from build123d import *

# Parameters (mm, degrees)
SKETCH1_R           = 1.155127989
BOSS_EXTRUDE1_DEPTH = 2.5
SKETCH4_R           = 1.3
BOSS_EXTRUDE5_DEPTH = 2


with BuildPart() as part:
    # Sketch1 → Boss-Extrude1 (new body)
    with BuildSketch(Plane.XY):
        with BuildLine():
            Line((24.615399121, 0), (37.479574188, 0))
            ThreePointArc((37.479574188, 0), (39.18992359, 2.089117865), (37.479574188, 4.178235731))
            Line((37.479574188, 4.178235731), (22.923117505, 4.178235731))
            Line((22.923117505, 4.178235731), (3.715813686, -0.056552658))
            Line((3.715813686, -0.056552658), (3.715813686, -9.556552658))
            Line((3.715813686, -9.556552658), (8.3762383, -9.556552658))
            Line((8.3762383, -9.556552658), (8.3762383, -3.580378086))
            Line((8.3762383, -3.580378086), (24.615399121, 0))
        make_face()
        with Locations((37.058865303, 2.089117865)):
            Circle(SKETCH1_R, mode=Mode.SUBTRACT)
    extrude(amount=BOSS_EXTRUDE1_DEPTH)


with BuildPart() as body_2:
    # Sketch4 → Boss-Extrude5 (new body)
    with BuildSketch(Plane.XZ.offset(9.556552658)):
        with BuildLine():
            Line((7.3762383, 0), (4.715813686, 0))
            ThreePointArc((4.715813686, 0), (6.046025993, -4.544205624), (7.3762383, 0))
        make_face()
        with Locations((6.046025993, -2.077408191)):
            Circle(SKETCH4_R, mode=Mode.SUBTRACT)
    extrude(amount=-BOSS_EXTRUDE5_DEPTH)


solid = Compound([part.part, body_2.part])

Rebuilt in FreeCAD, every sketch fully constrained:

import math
import FreeCAD as App
import Part
import Sketcher

V = App.Vector
Q = App.Units.Quantity

doc = App.newDocument("Part")
params = doc.addObject("Spreadsheet::Sheet", "Params")
for row, (alias, value) in enumerate([
    ("sketch1_height", "9.5 mm"),
    ("pad1_length", "2.5 mm"),
    ("sketch2_diameter", "2.6 mm"),
    ("pad2_length", "2 mm"),
], start=1):
    params.set(f"A{row}", alias)
    params.set(f"B{row}", "=" + value)
    params.setAlias(f"B{row}", alias)

body = doc.addObject("PartDesign::Body", "Body")

# Sketch on XY plane
sketch1 = body.newObject("Sketcher::SketchObject", "Sketch")
sketch1.AttachmentSupport = (doc.getObject("XY_Plane"), [""])
sketch1.MapMode = "FlatFace"
sketch1.addGeometry(Part.LineSegment(V(24.6, 0, 0), V(37.5, 0, 0)), False)
sketch1.addGeometry(Part.ArcOfCircle(Part.Circle(V(37.1, 2.1, 0), V(0, 0, 1), 2.1), math.radians(-79), math.radians(79)), False)
sketch1.addGeometry(Part.LineSegment(V(37.5, 4.2, 0), V(22.9, 4.2, 0)), False)
sketch1.addGeometry(Part.LineSegment(V(22.9, 4.2, 0), V(3.7, -0.1, 0)), False)
sketch1.addGeometry(Part.LineSegment(V(3.7, -0.1, 0), V(3.7, -9.6, 0)), False)
sketch1.addGeometry(Part.LineSegment(V(3.7, -9.6, 0), V(8.4, -9.6, 0)), False)
sketch1.addGeometry(Part.LineSegment(V(8.4, -9.6, 0), V(8.4, -3.6, 0)), False)
sketch1.addGeometry(Part.LineSegment(V(8.4, -3.6, 0), V(24.6, 0, 0)), False)
sketch1.addGeometry(Part.Circle(V(37.1, 2.1, 0), V(0, 0, 1), 1.2), False)
sketch1.addConstraint(Sketcher.Constraint("Coincident", 0, 2, 1, 1))
sketch1.addConstraint(Sketcher.Constraint("Coincident", 1, 2, 2, 1))
sketch1.addConstraint(Sketcher.Constraint("Coincident", 2, 2, 3, 1))
sketch1.addConstraint(Sketcher.Constraint("Coincident", 3, 2, 4, 1))
sketch1.addConstraint(Sketcher.Constraint("Coincident", 4, 2, 5, 1))
sketch1.addConstraint(Sketcher.Constraint("Coincident", 5, 2, 6, 1))
sketch1.addConstraint(Sketcher.Constraint("Coincident", 6, 2, 7, 1))
sketch1.addConstraint(Sketcher.Constraint("Coincident", 7, 2, 0, 1))
sketch1.addConstraint(Sketcher.Constraint("Horizontal", 0))
sketch1.addConstraint(Sketcher.Constraint("Horizontal", 2))
sketch1.addConstraint(Sketcher.Constraint("Vertical", 4))
sketch1.addConstraint(Sketcher.Constraint("Horizontal", 5))
sketch1.addConstraint(Sketcher.Constraint("Vertical", 6))
sketch1.addConstraint(Sketcher.Constraint("Coincident", 8, 3, 1, 3))
sketch1.addConstraint(Sketcher.Constraint("PointOnObject", 0, 2, -1))
sketch1.addConstraint(Sketcher.Constraint("Parallel", 3, 7))
sketch1.addConstraint(Sketcher.Constraint("Vertical", 0, 2, 1, 2))
sketch1.addConstraint(Sketcher.Constraint("DistanceY", 4, 2, 4, 1, Q("9.5 mm")))
sketch1.addConstraint(Sketcher.Constraint("Radius", 1, Q("2.131058 mm")))
sketch1.addConstraint(Sketcher.Constraint("Diameter", 8, Q("2.310256 mm")))
sketch1.addConstraint(Sketcher.Constraint("DistanceX", -1, 1, 7, 2, Q("24.615399 mm")))
sketch1.addConstraint(Sketcher.Constraint("DistanceX", 0, 1, 0, 2, Q("12.864175 mm")))
sketch1.addConstraint(Sketcher.Constraint("DistanceX", 2, 2, 2, 1, Q("14.556457 mm")))
sketch1.addConstraint(Sketcher.Constraint("DistanceX", 5, 1, 5, 2, Q("4.660425 mm")))
sketch1.addConstraint(Sketcher.Constraint("DistanceY", 6, 1, 6, 2, Q("5.976175 mm")))
sketch1.addConstraint(Sketcher.Constraint("DistanceX", -1, 1, 5, 2, Q("8.376238 mm")))
sketch1.addConstraint(Sketcher.Constraint("DistanceY", 6, 2, -1, 1, Q("3.580378 mm")))
sketch1.setExpression("Constraints[17]", "Params.sketch1_height")
pad1 = body.newObject("PartDesign::Pad", "Pad")
pad1.Profile = sketch1
pad1.setExpression("Length", "Params.pad1_length")
body2 = doc.addObject("PartDesign::Body", "Body001")

# Sketch on XZ plane
sketch2 = body2.newObject("Sketcher::SketchObject", "Sketch001")
sketch2.AttachmentSupport = (doc.getObject("XZ_Plane001"), [""])
sketch2.MapMode = "FlatFace"
sketch2.AttachmentOffset = App.Placement(V(0, 0, 9.556553), App.Rotation())
sketch2.addGeometry(Part.LineSegment(V(7.4, 0, 0), V(4.7, 0, 0)), False)
sketch2.addGeometry(Part.ArcOfCircle(Part.Circle(V(6, -2.1, 0), V(0, 0, 1), 2.5), math.radians(123), math.radians(417)), False)
sketch2.addGeometry(Part.Circle(V(6, -2.1, 0), V(0, 0, 1), 1.3), False)
sketch2.addConstraint(Sketcher.Constraint("Coincident", 0, 1, 1, 2))
sketch2.addConstraint(Sketcher.Constraint("Coincident", 1, 1, 0, 2))
sketch2.addConstraint(Sketcher.Constraint("Horizontal", 0))
sketch2.addConstraint(Sketcher.Constraint("Coincident", 2, 3, 1, 3))
sketch2.addConstraint(Sketcher.Constraint("PointOnObject", 0, 1, -1))
sketch2.addConstraint(Sketcher.Constraint("Diameter", 2, Q("2.6 mm")))
sketch2.addConstraint(Sketcher.Constraint("Radius", 1, Q("2.466797 mm")))
sketch2.addConstraint(Sketcher.Constraint("DistanceX", 0, 2, 0, 1, Q("2.660425 mm")))
sketch2.addConstraint(Sketcher.Constraint("DistanceX", -1, 1, 0, 1, Q("7.376238 mm")))
sketch2.setExpression("Constraints[5]", "Params.sketch2_diameter")
pad2 = body2.newObject("PartDesign::Pad", "Pad001")
pad2.Profile = sketch2
pad2.setExpression("Length", "Params.pad2_length")
pad2.Reversed = True

doc.recompute()
